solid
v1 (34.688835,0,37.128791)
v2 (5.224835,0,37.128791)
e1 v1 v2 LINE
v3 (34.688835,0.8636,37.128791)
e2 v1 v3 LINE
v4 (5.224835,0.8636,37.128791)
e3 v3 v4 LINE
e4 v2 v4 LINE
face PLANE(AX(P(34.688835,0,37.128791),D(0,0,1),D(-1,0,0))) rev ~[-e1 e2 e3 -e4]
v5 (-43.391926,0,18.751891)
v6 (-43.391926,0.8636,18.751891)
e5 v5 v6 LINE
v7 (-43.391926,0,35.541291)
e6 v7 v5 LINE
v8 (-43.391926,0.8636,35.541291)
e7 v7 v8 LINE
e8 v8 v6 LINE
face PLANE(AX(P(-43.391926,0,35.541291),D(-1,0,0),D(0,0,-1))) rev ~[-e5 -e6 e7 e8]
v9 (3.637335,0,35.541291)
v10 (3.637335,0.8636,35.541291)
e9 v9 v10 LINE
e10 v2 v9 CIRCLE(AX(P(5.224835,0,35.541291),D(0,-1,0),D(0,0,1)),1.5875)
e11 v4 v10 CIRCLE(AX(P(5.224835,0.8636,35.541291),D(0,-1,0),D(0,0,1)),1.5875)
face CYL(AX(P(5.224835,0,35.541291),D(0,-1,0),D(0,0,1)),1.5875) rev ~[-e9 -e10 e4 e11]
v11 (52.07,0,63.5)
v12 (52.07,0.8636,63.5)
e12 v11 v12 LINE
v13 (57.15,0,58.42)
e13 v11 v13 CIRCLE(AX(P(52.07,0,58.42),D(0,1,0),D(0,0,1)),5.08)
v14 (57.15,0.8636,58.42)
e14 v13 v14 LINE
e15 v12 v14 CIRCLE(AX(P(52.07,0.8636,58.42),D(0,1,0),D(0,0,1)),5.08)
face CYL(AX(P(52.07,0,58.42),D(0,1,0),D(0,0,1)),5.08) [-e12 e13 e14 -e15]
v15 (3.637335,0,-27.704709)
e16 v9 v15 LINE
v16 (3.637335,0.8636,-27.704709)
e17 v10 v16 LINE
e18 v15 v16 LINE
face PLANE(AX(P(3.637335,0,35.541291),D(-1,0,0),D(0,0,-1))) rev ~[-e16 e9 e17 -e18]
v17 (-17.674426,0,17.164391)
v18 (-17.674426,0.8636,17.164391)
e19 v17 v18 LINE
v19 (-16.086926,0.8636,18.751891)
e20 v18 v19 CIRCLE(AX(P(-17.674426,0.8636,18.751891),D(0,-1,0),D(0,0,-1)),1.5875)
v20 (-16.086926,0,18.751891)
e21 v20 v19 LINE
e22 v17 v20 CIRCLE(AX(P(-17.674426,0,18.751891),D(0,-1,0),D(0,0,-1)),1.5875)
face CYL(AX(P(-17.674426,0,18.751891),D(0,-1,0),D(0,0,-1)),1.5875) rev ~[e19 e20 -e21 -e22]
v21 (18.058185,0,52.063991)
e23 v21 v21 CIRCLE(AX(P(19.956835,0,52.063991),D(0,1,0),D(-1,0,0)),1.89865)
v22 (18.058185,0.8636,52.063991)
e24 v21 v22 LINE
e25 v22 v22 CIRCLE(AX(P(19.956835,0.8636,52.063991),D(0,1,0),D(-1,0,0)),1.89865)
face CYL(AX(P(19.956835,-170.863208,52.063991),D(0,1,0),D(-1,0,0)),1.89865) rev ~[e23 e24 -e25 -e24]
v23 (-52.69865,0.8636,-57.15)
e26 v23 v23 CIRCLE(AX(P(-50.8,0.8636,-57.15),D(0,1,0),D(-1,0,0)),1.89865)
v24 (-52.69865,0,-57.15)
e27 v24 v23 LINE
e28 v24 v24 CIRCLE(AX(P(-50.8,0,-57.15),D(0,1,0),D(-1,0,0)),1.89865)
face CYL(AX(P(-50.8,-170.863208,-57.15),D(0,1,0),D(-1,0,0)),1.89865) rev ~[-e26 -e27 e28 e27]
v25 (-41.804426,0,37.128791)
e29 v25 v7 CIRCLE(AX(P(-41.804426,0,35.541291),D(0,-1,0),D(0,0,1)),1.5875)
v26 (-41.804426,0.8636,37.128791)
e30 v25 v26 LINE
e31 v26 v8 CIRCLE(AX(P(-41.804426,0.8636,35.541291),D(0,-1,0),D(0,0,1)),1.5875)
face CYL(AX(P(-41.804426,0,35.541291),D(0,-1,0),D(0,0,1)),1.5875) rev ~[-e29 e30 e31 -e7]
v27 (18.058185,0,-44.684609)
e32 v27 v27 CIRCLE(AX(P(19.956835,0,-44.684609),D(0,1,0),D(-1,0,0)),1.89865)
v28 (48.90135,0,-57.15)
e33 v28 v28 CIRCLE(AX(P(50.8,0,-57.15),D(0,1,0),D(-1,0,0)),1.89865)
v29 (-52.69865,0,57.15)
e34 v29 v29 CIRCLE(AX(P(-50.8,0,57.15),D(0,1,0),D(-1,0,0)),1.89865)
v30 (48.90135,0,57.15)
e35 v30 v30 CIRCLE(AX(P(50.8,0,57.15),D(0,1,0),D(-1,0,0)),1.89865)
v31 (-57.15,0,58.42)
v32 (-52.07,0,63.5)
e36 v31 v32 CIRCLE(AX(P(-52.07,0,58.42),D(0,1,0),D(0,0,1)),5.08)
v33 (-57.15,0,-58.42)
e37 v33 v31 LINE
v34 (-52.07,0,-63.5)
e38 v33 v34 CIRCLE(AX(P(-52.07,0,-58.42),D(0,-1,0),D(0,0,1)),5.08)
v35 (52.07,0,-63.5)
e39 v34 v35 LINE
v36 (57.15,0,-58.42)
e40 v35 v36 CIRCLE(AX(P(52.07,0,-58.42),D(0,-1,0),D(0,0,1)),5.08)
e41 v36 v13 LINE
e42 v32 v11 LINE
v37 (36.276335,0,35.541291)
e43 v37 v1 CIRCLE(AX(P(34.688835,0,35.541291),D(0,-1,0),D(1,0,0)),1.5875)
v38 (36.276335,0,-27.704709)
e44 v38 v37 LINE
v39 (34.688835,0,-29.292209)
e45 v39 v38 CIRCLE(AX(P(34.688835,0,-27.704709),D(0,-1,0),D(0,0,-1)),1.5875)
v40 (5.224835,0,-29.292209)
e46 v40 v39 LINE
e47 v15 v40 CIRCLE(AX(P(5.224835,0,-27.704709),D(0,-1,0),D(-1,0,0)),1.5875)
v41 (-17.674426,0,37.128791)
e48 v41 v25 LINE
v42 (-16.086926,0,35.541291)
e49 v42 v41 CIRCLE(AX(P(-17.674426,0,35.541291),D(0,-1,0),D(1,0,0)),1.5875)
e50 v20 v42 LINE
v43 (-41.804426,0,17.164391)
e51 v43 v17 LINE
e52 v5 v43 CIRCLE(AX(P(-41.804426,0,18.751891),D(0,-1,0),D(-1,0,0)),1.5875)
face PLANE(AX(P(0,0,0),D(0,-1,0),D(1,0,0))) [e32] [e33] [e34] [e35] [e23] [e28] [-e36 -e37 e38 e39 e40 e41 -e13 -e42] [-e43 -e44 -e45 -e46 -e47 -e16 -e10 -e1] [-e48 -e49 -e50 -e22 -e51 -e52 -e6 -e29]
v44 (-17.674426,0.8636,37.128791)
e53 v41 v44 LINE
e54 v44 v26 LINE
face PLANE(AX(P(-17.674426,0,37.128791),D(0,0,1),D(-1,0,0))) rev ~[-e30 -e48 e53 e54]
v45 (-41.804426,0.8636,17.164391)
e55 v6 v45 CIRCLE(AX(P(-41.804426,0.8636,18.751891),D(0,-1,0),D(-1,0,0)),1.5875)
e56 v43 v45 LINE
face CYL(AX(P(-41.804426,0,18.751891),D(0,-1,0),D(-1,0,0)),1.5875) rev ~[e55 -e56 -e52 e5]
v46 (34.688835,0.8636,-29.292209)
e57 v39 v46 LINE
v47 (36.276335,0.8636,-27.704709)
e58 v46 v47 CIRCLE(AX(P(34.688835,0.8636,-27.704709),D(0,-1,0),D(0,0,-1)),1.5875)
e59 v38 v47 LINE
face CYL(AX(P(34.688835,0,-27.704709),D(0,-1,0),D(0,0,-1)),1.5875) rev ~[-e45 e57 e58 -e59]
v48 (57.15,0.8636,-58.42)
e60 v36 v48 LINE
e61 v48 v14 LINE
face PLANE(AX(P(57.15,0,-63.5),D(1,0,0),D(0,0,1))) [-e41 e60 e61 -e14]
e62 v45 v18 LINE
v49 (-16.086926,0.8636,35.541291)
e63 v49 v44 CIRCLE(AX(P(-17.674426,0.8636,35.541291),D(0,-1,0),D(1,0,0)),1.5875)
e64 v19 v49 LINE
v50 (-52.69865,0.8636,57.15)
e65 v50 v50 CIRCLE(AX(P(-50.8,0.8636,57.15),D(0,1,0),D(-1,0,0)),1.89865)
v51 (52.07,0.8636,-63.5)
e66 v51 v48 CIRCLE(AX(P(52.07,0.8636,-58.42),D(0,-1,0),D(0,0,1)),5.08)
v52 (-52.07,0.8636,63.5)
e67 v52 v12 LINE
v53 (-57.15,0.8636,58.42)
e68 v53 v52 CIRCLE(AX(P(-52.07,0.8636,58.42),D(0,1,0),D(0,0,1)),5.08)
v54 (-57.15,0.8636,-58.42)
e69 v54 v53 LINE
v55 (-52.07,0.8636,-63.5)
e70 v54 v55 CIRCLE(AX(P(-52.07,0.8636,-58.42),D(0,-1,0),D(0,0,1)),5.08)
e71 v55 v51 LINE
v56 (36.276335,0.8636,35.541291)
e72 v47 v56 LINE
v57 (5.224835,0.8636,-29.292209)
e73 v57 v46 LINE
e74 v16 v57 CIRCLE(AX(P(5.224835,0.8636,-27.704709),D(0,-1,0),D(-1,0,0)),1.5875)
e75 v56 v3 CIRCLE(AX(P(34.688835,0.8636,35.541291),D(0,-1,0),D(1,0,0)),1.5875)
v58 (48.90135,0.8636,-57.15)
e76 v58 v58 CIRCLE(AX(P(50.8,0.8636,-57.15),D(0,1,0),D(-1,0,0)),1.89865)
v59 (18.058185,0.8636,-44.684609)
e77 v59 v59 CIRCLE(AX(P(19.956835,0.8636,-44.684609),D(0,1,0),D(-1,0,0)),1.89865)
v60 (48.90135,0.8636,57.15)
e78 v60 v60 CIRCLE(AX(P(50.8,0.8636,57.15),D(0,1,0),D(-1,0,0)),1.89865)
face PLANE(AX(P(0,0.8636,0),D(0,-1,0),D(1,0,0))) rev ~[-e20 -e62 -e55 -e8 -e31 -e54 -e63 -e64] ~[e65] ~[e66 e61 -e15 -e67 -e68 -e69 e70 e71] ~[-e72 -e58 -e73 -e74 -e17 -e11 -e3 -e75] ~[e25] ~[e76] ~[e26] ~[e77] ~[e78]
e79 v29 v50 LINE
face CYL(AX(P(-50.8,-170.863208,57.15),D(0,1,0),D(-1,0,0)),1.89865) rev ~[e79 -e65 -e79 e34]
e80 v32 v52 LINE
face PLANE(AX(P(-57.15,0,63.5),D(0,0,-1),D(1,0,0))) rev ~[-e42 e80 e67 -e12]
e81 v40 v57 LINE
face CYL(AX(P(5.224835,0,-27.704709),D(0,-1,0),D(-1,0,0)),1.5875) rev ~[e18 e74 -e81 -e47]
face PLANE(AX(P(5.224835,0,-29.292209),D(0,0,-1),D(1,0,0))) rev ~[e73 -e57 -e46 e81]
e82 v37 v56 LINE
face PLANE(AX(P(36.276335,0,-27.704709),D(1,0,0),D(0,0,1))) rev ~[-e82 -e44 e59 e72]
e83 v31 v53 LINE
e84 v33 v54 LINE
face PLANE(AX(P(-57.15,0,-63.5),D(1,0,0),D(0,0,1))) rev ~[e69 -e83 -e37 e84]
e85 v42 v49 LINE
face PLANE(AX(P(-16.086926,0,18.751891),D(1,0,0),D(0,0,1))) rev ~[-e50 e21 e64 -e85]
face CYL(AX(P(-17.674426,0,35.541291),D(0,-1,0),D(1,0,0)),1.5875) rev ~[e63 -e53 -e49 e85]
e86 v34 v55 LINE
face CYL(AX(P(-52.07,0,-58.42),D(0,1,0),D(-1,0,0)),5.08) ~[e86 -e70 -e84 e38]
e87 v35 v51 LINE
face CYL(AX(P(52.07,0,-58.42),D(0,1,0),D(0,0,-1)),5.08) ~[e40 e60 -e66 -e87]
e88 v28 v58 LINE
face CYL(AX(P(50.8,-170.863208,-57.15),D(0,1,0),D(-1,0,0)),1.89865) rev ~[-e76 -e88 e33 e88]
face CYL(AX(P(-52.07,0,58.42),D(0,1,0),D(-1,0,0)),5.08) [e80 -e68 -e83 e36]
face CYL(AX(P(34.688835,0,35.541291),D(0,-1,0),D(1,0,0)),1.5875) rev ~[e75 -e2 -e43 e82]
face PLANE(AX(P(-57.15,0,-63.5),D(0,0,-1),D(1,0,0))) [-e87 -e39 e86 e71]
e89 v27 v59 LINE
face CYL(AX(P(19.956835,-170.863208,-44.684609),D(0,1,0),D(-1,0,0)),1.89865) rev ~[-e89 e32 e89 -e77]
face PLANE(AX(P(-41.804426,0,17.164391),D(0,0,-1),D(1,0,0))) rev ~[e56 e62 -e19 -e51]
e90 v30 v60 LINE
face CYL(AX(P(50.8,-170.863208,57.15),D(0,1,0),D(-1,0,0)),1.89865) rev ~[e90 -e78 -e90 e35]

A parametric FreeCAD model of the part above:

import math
import FreeCAD as App
import Part
import Sketcher

V = App.Vector
Q = App.Units.Quantity


def edges_at(feature, points):
    """Names of the edges that pass closest to the given points."""
    edges = feature.Shape.Edges
    near = lambda p: min(range(len(edges)), key=lambda i: edges[i].distToShape(Part.Vertex(*p))[0])
    return sorted({f"Edge{near(p) + 1}" for p in points})

doc = App.newDocument("Part")
body = doc.addObject("PartDesign::Body", "Body")

# Sketch on XZ plane
sketch1 = doc.addObject("Sketcher::SketchObject", "Sketch")
body.addObject(sketch1)
sketch1.AttachmentSupport = (doc.XZ_Plane, [""])
sketch1.MapMode = "FlatFace"
sketch1.addGeometry(Part.LineSegment(V(-57, 64, 0), V(-57, -64, 0)), False)
sketch1.addGeometry(Part.LineSegment(V(-57, -64, 0), V(57, -64, 0)), False)
sketch1.addGeometry(Part.LineSegment(V(57, -64, 0), V(57, 64, 0)), False)
sketch1.addGeometry(Part.LineSegment(V(57, 64, 0), V(-57, 64, 0)), False)
sketch1.addConstraint(Sketcher.Constraint("Coincident", 0, 2, 1, 1))
sketch1.addConstraint(Sketcher.Constraint("Coincident", 1, 2, 2, 1))
sketch1.addConstraint(Sketcher.Constraint("Coincident", 2, 2, 3, 1))
sketch1.addConstraint(Sketcher.Constraint("Coincident", 3, 2, 0, 1))
sketch1.addConstraint(Sketcher.Constraint("Vertical", 0))
sketch1.addConstraint(Sketcher.Constraint("Horizontal", 1))
sketch1.addConstraint(Sketcher.Constraint("Vertical", 2))
sketch1.addConstraint(Sketcher.Constraint("Horizontal", 3))
sketch1.addConstraint(Sketcher.Constraint("Symmetric", 0, 2, 2, 2, -1, 1))
sketch1.addConstraint(Sketcher.Constraint("DistanceY", 0, 2, 0, 1, Q("5 in")))
sketch1.addConstraint(Sketcher.Constraint("DistanceX", 1, 1, 1, 2, Q("4.5 in")))
pad1 = doc.addObject("PartDesign::Pad", "Pad")
body.addObject(pad1)
pad1.Profile = sketch1
pad1.Length = Q("0.034 in")
pad1.Reversed = True

# Sketch on XZ plane
sketch2 = doc.addObject("Sketcher::SketchObject", "Sketch001")
body.addObject(sketch2)
sketch2.AttachmentSupport = (doc.XZ_Plane, [""])
sketch2.MapMode = "FlatFace"
sketch2.addGeometry(Part.ArcOfCircle(Part.Circle(V(-17.7, 35.5, 0), V(0, 0, 1), 1.6), math.radians(0), math.radians(90)), False)
sketch2.addGeometry(Part.LineSegment(V(-17.7, 37.1, 0), V(-41.8, 37.1, 0)), False)
sketch2.addGeometry(Part.ArcOfCircle(Part.Circle(V(-41.8, 35.5, 0), V(0, 0, 1), 1.6), math.radians(90), math.radians(180)), False)
sketch2.addGeometry(Part.LineSegment(V(-43.4, 35.5, 0), V(-43.4, 18.8, 0)), False)
sketch2.addGeometry(Part.ArcOfCircle(Part.Circle(V(-41.8, 18.8, 0), V(0, 0, 1), 1.6), math.radians(180), math.radians(270)), False)
sketch2.addGeometry(Part.LineSegment(V(-41.8, 17.2, 0), V(-17.7, 17.2, 0)), False)
sketch2.addGeometry(Part.ArcOfCircle(Part.Circle(V(-17.7, 18.8, 0), V(0, 0, 1), 1.6), math.radians(-90), math.radians(0)), False)
sketch2.addGeometry(Part.LineSegment(V(-16.1, 18.8, 0), V(-16.1, 35.5, 0)), False)
sketch2.addGeometry(Part.ArcOfCircle(Part.Circle(V(34.7, 35.5, 0), V(0, 0, 1), 1.6), math.radians(0), math.radians(90)), False)
sketch2.addGeometry(Part.LineSegment(V(34.7, 37.1, 0), V(5.2, 37.1, 0)), False)
sketch2.addGeometry(Part.ArcOfCircle(Part.Circle(V(5.2, 35.5, 0), V(0, 0, 1), 1.6), math.radians(90), math.radians(180)), False)
sketch2.addGeometry(Part.LineSegment(V(3.6, 35.5, 0), V(3.6, -27.7, 0)), False)
sketch2.addGeometry(Part.ArcOfCircle(Part.Circle(V(5.2, -27.7, 0), V(0, 0, 1), 1.6), math.radians(180), math.radians(270)), False)
sketch2.addGeometry(Part.LineSegment(V(5.2, -29.3, 0), V(34.7, -29.3, 0)), False)
sketch2.addGeometry(Part.ArcOfCircle(Part.Circle(V(34.7, -27.7, 0), V(0, 0, 1), 1.6), math.radians(-90), math.radians(0)), False)
sketch2.addGeometry(Part.LineSegment(V(36.3, -27.7, 0), V(36.3, 35.5, 0)), False)
sketch2.addConstraint(Sketcher.Constraint("Tangent", 0, 2, 1, 1))
sketch2.addConstraint(Sketcher.Constraint("Tangent", 1, 2, 2, 1))
sketch2.addConstraint(Sketcher.Constraint("Tangent", 2, 2, 3, 1))
sketch2.addConstraint(Sketcher.Constraint("Tangent", 3, 2, 4, 1))
sketch2.addConstraint(Sketcher.Constraint("Tangent", 4, 2, 5, 1))
sketch2.addConstraint(Sketcher.Constraint("Tangent", 5, 2, 6, 1))
sketch2.addConstraint(Sketcher.Constraint("Tangent", 6, 2, 7, 1))
sketch2.addConstraint(Sketcher.Constraint("Tangent", 7, 2, 0, 1))
sketch2.addConstraint(Sketcher.Constraint("Tangent", 8, 2, 9, 1))
sketch2.addConstraint(Sketcher.Constraint("Tangent", 9, 2, 10, 1))
sketch2.addConstraint(Sketcher.Constraint("Tangent", 10, 2, 11, 1))
sketch2.addConstraint(Sketcher.Constraint("Tangent", 11, 2, 12, 1))
sketch2.addConstraint(Sketcher.Constraint("Tangent", 12, 2, 13, 1))
sketch2.addConstraint(Sketcher.Constraint("Tangent", 13, 2, 14, 1))
sketch2.addConstraint(Sketcher.Constraint("Tangent", 14, 2, 15, 1))
sketch2.addConstraint(Sketcher.Constraint("Tangent", 15, 2, 8, 1))
sketch2.addConstraint(Sketcher.Constraint("Horizontal", 1))
sketch2.addConstraint(Sketcher.Constraint("Vertical", 3))
sketch2.addConstraint(Sketcher.Constraint("Horizontal", 5))
sketch2.addConstraint(Sketcher.Constraint("Vertical", 7))
sketch2.addConstraint(Sketcher.Constraint("Horizontal", 9))
sketch2.addConstraint(Sketcher.Constraint("Vertical", 11))
sketch2.addConstraint(Sketcher.Constraint("Horizontal", 13))
sketch2.addConstraint(Sketcher.Constraint("Vertical", 15))
sketch2.addConstraint(Sketcher.Constraint("Equal", 0, 2))
sketch2.addConstraint(Sketcher.Constraint("Equal", 2, 4))
sketch2.addConstraint(Sketcher.Constraint("Equal", 4, 6))
sketch2.addConstraint(Sketcher.Constraint("Equal", 6, 8))
sketch2.addConstraint(Sketcher.Constraint("Equal", 8, 10))
sketch2.addConstraint(Sketcher.Constraint("Equal", 10, 12))
sketch2.addConstraint(Sketcher.Constraint("Equal", 12, 14))
sketch2.addConstraint(Sketcher.Constraint("Horizontal", 2, 3, 8, 3))
sketch2.addConstraint(Sketcher.Constraint("Radius", 0, Q("0.0625 in")))
sketch2.addConstraint(Sketcher.Constraint("DistanceX", 1, 2, 1, 1, Q("0.95 in")))
sketch2.addConstraint(Sketcher.Constraint("DistanceX", 9, 2, 9, 1, Q("1.16 in")))
sketch2.addConstraint(Sketcher.Constraint("DistanceY", 11, 2, 11, 1, Q("2.49 in")))
sketch2.addConstraint(Sketcher.Constraint("DistanceY", 3, 2, 3, 1, Q("0.661 in")))
sketch2.addConstraint(Sketcher.Constraint("DistanceY", -1, 1, 0, 3, 35.541291))
sketch2.addConstraint(Sketcher.Constraint("DistanceX", 0, 3, 8, 3, 52.363261))
sketch2.addConstraint(Sketcher.Constraint("DistanceX", 0, 3, -1, 1, 17.674426))
pocket1 = doc.addObject("PartDesign::Pocket", "Pocket")
body.addObject(pocket1)
pocket1.Profile = sketch2
pocket1.Type = "ThroughAll"
doc.recompute()

fillet = doc.addObject("PartDesign::Fillet", "Fillet")
body.addObject(fillet)
fillet.Base = (pocket1, edges_at(pocket1, [
    (-57.15, 0.432, 63.5),
    (57.15, 0.432, 63.5),
    (57.15, 0.432, -63.5),
    (-57.15, 0.432, -63.5),
]))
fillet.Radius = Q("0.2 in")

# Sketch on XZ plane
sketch3 = doc.addObject("Sketcher::SketchObject", "Sketch002")
body.addObject(sketch3)
sketch3.AttachmentSupport = (doc.XZ_Plane, [""])
sketch3.MapMode = "FlatFace"
sketch3.addGeometry(Part.Circle(V(20, 52.1, 0), V(0, 0, 1), 1.9), False)
sketch3.addGeometry(Part.Circle(V(20, -44.7, 0), V(0, 0, 1), 1.9), False)
sketch3.addConstraint(Sketcher.Constraint("Equal", 0, 1))
sketch3.addConstraint(Sketcher.Constraint("Vertical", 0, 3, 1, 3))
sketch3.addConstraint(Sketcher.Constraint("Diameter", 0, Q("0.1495 in")))
sketch3.addConstraint(Sketcher.Constraint("DistanceY", 1, 3, 0, 3, Q("3.809 in")))
sketch3.addConstraint(Sketcher.Constraint("DistanceY", -1, 1, 0, 3, 52.063991))
sketch3.addConstraint(Sketcher.Constraint("DistanceX", -1, 1, 0, 3, 19.956835))
doc.recompute()
hole = doc.addObject("PartDesign::Hole", "Hole")
body.addObject(hole)
hole.Profile = sketch3
hole.ThreadType = "None"
hole.Diameter = Q("0.1495 in")
hole.DepthType = "ThroughAll"

# Sketch on XZ plane
sketch4 = doc.addObject("Sketcher::SketchObject", "Sketch003")
body.addObject(sketch4)
sketch4.AttachmentSupport = (doc.XZ_Plane, [""])
sketch4.MapMode = "FlatFace"
sketch4.addGeometry(Part.Circle(V(-50.8, 57.1, 0), V(0, 0, 1), 1.9), False)
sketch4.addGeometry(Part.Circle(V(50.8, 57.1, 0), V(0, 0, 1), 1.9), False)
sketch4.addGeometry(Part.Circle(V(50.8, -57.1, 0), V(0, 0, 1), 1.9), False)
sketch4.addGeometry(Part.Circle(V(-50.8, -57.1, 0), V(0, 0, 1), 1.9), False)
sketch4.addConstraint(Sketcher.Constraint("Equal", 0, 1))
sketch4.addConstraint(Sketcher.Constraint("Equal", 1, 2))
sketch4.addConstraint(Sketcher.Constraint("Equal", 2, 3))
sketch4.addConstraint(Sketcher.Constraint("Symmetric", 0, 3, 2, 3, -1, 1))
sketch4.addConstraint(Sketcher.Constraint("Symmetric", 1, 3, 3, 3, -1, 1))
sketch4.addConstraint(Sketcher.Constraint("Symmetric", 0, 3, 1, 3, -2))
sketch4.addConstraint(Sketcher.Constraint("DistanceX", 0, 3, -1, 1, Q("2 in")))
sketch4.addConstraint(Sketcher.Constraint("Diameter", 0, Q("0.1495 in")))
sketch4.addConstraint(Sketcher.Constraint("DistanceY", 2, 3, 1, 3, Q("4.5 in")))
doc.recompute()
hole2 = doc.addObject("PartDesign::Hole", "Hole001")
body.addObject(hole2)
hole2.Profile = sketch4
hole2.ThreadType = "None"
hole2.Diameter = Q("0.1495 in")
hole2.DepthType = "ThroughAll"

doc.recompute()
